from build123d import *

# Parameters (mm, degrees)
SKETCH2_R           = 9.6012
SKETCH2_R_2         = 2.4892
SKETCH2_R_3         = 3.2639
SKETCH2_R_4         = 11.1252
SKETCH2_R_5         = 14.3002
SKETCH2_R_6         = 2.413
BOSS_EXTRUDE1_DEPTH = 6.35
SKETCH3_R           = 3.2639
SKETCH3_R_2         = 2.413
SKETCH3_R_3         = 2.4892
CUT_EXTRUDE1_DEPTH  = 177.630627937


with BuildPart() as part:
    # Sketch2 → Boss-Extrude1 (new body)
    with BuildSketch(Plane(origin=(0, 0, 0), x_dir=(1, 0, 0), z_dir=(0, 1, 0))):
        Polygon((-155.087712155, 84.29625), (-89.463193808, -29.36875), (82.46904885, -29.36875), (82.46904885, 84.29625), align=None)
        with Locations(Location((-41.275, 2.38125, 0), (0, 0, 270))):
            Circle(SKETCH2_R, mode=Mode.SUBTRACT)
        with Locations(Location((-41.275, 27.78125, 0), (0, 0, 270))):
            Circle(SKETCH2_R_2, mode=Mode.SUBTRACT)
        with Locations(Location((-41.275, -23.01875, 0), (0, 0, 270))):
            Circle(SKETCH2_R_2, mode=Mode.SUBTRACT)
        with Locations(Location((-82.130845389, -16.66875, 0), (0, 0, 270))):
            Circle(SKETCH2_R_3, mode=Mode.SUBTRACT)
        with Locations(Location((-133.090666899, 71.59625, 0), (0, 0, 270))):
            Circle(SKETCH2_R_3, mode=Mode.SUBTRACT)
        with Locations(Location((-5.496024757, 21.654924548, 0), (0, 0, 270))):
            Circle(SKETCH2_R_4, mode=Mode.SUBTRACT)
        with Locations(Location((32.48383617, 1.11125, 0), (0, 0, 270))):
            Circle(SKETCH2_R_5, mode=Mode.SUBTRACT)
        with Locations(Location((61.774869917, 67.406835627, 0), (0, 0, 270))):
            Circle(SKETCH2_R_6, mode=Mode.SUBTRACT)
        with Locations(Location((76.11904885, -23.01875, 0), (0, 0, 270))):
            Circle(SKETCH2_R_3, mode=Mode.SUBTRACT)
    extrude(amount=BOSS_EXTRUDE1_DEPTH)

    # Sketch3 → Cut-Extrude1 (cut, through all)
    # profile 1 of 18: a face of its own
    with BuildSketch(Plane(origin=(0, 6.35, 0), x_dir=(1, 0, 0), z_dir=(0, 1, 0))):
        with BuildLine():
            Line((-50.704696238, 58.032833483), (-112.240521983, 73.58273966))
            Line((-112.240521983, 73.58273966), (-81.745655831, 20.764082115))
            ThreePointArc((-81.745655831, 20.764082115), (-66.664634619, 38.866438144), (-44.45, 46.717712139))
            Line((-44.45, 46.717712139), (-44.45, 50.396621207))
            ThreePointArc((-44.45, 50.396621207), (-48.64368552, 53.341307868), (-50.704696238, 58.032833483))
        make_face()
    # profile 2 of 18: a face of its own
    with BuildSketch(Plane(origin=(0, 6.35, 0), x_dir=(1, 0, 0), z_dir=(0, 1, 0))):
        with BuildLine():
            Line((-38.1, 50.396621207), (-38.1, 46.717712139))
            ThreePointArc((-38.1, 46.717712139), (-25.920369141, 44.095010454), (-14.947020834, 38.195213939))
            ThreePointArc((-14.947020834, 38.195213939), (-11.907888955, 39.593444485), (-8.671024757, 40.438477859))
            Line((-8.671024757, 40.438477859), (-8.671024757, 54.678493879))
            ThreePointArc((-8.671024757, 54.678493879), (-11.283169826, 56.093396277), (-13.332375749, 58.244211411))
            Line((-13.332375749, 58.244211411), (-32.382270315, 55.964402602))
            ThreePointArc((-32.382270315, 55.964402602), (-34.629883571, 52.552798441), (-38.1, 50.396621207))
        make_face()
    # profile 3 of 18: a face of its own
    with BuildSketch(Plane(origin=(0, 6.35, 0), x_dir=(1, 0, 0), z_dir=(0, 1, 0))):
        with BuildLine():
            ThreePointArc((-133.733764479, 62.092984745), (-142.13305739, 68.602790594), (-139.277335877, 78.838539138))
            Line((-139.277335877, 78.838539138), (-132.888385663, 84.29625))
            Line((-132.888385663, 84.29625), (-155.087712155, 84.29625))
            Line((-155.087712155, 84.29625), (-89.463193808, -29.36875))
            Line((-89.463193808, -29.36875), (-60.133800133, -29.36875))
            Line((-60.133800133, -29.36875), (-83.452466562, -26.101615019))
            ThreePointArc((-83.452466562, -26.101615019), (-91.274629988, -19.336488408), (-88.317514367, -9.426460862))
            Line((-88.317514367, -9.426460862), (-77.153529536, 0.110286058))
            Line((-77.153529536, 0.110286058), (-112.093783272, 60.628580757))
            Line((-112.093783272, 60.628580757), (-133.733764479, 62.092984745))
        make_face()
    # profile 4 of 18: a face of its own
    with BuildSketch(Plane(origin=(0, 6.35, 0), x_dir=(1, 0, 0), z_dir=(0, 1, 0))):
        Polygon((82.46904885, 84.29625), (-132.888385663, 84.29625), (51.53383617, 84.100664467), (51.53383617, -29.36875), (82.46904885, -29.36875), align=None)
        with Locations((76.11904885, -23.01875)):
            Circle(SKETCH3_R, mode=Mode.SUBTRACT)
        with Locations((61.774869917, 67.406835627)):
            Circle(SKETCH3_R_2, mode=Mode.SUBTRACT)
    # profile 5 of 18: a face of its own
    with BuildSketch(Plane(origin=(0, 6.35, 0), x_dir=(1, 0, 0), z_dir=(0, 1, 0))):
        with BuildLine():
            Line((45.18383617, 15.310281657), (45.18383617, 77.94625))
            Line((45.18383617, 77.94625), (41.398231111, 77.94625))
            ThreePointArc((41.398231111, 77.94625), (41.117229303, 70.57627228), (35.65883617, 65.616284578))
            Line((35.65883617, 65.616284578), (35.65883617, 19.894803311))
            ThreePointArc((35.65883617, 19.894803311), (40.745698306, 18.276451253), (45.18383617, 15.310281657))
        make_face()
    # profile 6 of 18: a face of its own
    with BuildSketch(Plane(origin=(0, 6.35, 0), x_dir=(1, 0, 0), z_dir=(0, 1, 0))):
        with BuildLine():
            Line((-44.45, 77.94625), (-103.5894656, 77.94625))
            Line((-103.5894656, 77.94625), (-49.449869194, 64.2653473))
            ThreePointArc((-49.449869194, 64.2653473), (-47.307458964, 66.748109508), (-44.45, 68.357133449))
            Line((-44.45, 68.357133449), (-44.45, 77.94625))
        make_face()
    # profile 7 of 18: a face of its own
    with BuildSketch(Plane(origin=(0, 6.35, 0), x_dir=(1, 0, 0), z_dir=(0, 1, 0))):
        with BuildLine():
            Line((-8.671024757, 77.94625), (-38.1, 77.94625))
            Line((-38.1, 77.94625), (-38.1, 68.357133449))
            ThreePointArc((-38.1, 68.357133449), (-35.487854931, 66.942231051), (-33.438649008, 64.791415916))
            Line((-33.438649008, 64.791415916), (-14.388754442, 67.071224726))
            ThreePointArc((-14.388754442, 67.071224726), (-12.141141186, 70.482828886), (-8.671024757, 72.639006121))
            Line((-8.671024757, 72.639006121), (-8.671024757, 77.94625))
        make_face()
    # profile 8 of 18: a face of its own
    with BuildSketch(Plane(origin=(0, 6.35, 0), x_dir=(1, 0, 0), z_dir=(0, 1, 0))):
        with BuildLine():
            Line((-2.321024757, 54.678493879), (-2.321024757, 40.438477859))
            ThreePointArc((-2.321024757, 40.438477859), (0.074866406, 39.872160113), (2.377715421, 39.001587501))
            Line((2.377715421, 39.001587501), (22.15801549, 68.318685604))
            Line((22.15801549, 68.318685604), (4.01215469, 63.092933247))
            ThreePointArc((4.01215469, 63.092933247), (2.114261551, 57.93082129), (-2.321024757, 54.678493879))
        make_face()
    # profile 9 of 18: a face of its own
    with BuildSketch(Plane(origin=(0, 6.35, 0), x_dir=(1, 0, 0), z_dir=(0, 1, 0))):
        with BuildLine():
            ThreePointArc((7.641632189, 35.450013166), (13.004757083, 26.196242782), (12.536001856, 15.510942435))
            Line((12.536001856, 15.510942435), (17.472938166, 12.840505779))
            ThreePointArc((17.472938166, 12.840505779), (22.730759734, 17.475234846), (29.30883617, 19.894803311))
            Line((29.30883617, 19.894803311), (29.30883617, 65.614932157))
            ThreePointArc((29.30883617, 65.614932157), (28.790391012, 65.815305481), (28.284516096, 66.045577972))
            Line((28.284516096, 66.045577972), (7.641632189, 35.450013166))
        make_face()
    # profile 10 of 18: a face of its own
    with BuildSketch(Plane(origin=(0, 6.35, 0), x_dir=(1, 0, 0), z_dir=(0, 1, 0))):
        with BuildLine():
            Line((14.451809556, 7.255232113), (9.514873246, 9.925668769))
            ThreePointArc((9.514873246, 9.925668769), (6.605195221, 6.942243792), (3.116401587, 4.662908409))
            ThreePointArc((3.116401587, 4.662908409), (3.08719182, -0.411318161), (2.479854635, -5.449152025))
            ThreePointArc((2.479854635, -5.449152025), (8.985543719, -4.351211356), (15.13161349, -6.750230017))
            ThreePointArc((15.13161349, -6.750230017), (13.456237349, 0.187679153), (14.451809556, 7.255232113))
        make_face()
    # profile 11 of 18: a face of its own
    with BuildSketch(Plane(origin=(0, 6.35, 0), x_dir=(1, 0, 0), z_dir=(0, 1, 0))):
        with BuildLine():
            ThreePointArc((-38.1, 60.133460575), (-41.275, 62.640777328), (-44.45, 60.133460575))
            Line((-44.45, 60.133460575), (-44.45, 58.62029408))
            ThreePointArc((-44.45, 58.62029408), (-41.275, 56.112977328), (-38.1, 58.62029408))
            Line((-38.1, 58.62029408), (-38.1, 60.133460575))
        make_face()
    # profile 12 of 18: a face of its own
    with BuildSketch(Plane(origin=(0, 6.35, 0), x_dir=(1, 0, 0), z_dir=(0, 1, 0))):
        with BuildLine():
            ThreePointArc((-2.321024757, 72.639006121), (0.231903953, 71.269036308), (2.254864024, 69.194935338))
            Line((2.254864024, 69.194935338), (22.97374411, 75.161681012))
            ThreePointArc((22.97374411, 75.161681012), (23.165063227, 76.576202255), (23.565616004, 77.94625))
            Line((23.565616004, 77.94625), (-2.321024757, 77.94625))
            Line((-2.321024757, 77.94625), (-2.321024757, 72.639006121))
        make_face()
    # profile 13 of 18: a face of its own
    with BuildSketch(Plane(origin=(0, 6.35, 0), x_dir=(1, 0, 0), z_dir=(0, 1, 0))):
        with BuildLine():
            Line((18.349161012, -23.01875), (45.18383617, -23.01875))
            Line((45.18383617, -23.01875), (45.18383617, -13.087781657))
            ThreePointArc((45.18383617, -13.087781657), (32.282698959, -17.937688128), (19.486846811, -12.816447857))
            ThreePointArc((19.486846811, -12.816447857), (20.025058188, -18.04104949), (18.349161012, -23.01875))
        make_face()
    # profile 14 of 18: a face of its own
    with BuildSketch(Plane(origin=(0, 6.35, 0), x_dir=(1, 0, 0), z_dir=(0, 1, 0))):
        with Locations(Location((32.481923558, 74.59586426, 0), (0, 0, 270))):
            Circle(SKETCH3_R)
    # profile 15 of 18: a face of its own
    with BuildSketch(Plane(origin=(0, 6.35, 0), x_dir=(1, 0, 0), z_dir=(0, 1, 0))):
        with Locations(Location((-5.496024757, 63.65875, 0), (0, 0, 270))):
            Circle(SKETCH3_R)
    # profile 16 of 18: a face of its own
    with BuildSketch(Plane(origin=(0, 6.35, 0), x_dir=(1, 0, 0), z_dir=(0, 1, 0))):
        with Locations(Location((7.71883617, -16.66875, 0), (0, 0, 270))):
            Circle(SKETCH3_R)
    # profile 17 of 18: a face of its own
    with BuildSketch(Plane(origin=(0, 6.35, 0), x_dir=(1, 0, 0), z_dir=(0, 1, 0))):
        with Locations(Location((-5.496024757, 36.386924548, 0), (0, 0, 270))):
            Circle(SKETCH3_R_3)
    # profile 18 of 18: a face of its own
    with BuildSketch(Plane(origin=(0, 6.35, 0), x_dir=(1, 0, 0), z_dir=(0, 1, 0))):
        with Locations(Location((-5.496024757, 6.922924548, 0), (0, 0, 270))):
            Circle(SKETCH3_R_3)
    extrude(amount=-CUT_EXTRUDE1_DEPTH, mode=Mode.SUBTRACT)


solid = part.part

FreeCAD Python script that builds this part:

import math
import FreeCAD as App
import Part
import Sketcher
from FreeCAD import Vector
Q = App.Units.Quantity


def add_polygon(sketch, points):
    """Adds a closed chain of lines whose ends are joined by coincident constraints."""
    first, n = sketch.GeometryCount, len(points)
    for a, b in zip(points, points[1:] + points[:1]):
        sketch.addGeometry(Part.LineSegment(App.Vector(*a, 0), App.Vector(*b, 0)), False)
    for i in range(n):
        sketch.addConstraint(Sketcher.Constraint("Coincident", first + i, 2, first + (i + 1) % n, 1))

doc = App.newDocument("Part")
params = doc.addObject("Spreadsheet::Sheet", "Params")
for row, (alias, value) in enumerate([
    ("sketch1_diameter", "0.19 in"),
    ("sketch1_diameter2", "0.257 in"),
    ("sketch1_diameter3", "0.196 in"),
    ("sketch1_diameter4", "0.756 in"),
    ("sketch1_diameter5", "0.876 in"),
    ("pad1_length", "0.25 in"),
    ("sketch2_diameter", "0.19 in"),
    ("sketch2_radius", "1.75 in"),
    ("sketch2_radius2", "0.75 in"),
    ("sketch2_diameter2", "0.257 in"),
    ("sketch2_diameter3", "0.196 in"),
    ("pocket1_length", "177.630628 mm"),
], start=1):
    params.set(f"A{row}", alias)
    params.set(f"B{row}", "=" + value)
    params.setAlias(f"B{row}", alias)

body = doc.addObject("PartDesign::Body", "Body")

# Sketch on XZ plane
sketch1 = body.newObject("Sketcher::SketchObject", "Sketch")
sketch1.AttachmentSupport = (doc.getObject("XZ_Plane"), [""])
sketch1.MapMode = "FlatFace"
add_polygon(sketch1, [(-155.1, -84.3), (-89.5, 29.4), (82.5, 29.4), (82.5, -84.3)])  # lines 0-3
sketch1.addGeometry(Part.Circle(Vector(-82.1, 16.7, 0), Vector(0, 0, 1), 3.3), False)  # 4
sketch1.addGeometry(Part.Circle(Vector(-41.3, 23, 0), Vector(0, 0, 1), 2.5), False)  # 5
sketch1.addGeometry(Part.Circle(Vector(-41.3, -2.4, 0), Vector(0, 0, 1), 9.6), False)  # 6
sketch1.addGeometry(Part.Circle(Vector(76.1, 23, 0), Vector(0, 0, 1), 3.3), False)  # 7
sketch1.addGeometry(Part.Circle(Vector(-5.5, -21.7, 0), Vector(0, 0, 1), 11.1), False)  # 8
sketch1.addGeometry(Part.Circle(Vector(32.5, -1.1, 0), Vector(0, 0, 1), 14.3), False)  # 9
sketch1.addGeometry(Part.Circle(Vector(-41.3, -27.8, 0), Vector(0, 0, 1), 2.5), False)  # 10
sketch1.addGeometry(Part.Circle(Vector(-133.1, -71.6, 0), Vector(0, 0, 1), 3.3), False)  # 11
sketch1.addGeometry(Part.Circle(Vector(61.8, -67.4, 0), Vector(0, 0, 1), 2.4), False)  # 12
sketch1.addConstraint(Sketcher.Constraint("Horizontal", 1))
sketch1.addConstraint(Sketcher.Constraint("Vertical", 2))
sketch1.addConstraint(Sketcher.Constraint("Horizontal", 3))
sketch1.addConstraint(Sketcher.Constraint("Equal", 4, 7))
sketch1.addConstraint(Sketcher.Constraint("Equal", 5, 10))
sketch1.addConstraint(Sketcher.Constraint("Equal", 7, 11))
sketch1.addConstraint(Sketcher.Constraint("Horizontal", 5, 3, 7, 3))
sketch1.addConstraint(Sketcher.Constraint("Vertical", 5, 3, 6, 3))
sketch1.addConstraint(Sketcher.Constraint("Vertical", 6, 3, 10, 3))
sketch1.addConstraint(Sketcher.Constraint("Diameter", 12, Q("0.19 in")))
sketch1.addConstraint(Sketcher.Constraint("Diameter", 4, Q("0.257 in")))
sketch1.addConstraint(Sketcher.Constraint("Diameter", 5, Q("0.196 in")))
sketch1.addConstraint(Sketcher.Constraint("Diameter", 6, Q("0.756 in")))
sketch1.addConstraint(Sketcher.Constraint("Diameter", 8, Q("0.876 in")))
sketch1.addConstraint(Sketcher.Constraint("Diameter", 9, Q("1.126 in")))
sketch1.addConstraint(Sketcher.Constraint("Angle", 0, Q("60 deg")))
sketch1.addConstraint(Sketcher.Constraint("DistanceY", 6, 3, 5, 3, Q("1 in")))
sketch1.addConstraint(Sketcher.Constraint("DistanceY", 10, 3, 6, 3, Q("1 in")))
sketch1.addConstraint(Sketcher.Constraint("DistanceY", 9, 3, 4, 3, Q("0.7 in")))
sketch1.addConstraint(Sketcher.Constraint("DistanceY", 4, 3, 0, 2, Q("0.5 in")))
sketch1.addConstraint(Sketcher.Constraint("DistanceY", 3, 2, 11, 3, Q("0.5 in")))
sketch1.addConstraint(Sketcher.Constraint("DistanceY", 2, 2, 2, 1, Q("4.475 in")))
sketch1.addConstraint(Sketcher.Constraint("DistanceY", 4, 3, 5, 3, Q("0.25 in")))
sketch1.addConstraint(Sketcher.Constraint("DistanceX", 7, 3, 1, 2, Q("0.25 in")))
sketch1.addConstraint(Sketcher.Constraint("DistanceY", -1, 1, 4, 3, Q("0.65625 in")))
sketch1.addConstraint(Sketcher.Constraint("DistanceX", 5, 3, -1, 1, Q("1.625 in")))
sketch1.addConstraint(Sketcher.Constraint("DistanceX", 3, 2, 3, 1, Q("237.556761 mm")))
sketch1.addConstraint(Sketcher.Constraint("DistanceX", -1, 1, 7, 3, Q("76.119049 mm")))
sketch1.addConstraint(Sketcher.Constraint("DistanceX", -1, 1, 12, 3, Q("61.77487 mm")))
sketch1.addConstraint(Sketcher.Constraint("DistanceX", 4, 3, 8, 3, Q("76.634821 mm")))
sketch1.addConstraint(Sketcher.Constraint("DistanceX", 8, 3, 9, 3, Q("37.979861 mm")))
sketch1.addConstraint(Sketcher.Constraint("DistanceX", 11, 3, 4, 3, Q("50.959822 mm")))
sketch1.addConstraint(Sketcher.Constraint("DistanceY", 12, 3, 8, 3, Q("45.751911 mm")))
sketch1.addConstraint(Sketcher.Constraint("DistanceX", 0, 2, 4, 3, Q("7.332348 mm")))
sketch1.addConstraint(Sketcher.Constraint("DistanceY", 8, 3, -1, 1, Q("21.654925 mm")))
sketch1.setExpression("Constraints[13]", "Params.sketch1_diameter")
sketch1.setExpression("Constraints[14]", "Params.sketch1_diameter2")
sketch1.setExpression("Constraints[15]", "Params.sketch1_diameter3")
sketch1.setExpression("Constraints[16]", "Params.sketch1_diameter4")
sketch1.setExpression("Constraints[17]", "Params.sketch1_diameter5")
pad1 = body.newObject("PartDesign::Pad", "Pad")
pad1.Profile = sketch1
pad1.setExpression("Length", "Params.pad1_length")
pad1.Reversed = True

# Sketch on XZ plane
sketch2 = body.newObject("Sketcher::SketchObject", "Sketch001")
sketch2.AttachmentSupport = (doc.getObject("XZ_Plane"), [""])
sketch2.MapMode = "FlatFace"
sketch2.AttachmentOffset = App.Placement(Vector(0, 0, -0.25 * 25.4), App.Rotation())
sketch2.addGeometry(Part.LineSegment(Vector(-50.7, -58, 0), Vector(-112.2, -73.6, 0)), False)  # 0
sketch2.addGeometry(Part.LineSegment(Vector(-112.2, -73.6, 0), Vector(-81.7, -20.8, 0)), False)  # 1
sketch2.addGeometry(Part.ArcOfCircle(Part.Circle(Vector(-41.3, -2.4, 0), Vector(0, 0, 1), 44.4), math.radians(-156), math.radians(-94)), False)  # 2
sketch2.addGeometry(Part.LineSegment(Vector(-44.5, -46.7, 0), Vector(-44.5, -50.4, 0)), False)  # 3
sketch2.addGeometry(Part.ArcOfCircle(Part.Circle(Vector(-41.3, -59.4, 0), Vector(0, 0, 1), 9.5), math.radians(109), math.radians(172)), False)  # 4
sketch2.addGeometry(Part.LineSegment(Vector(-38.1, -50.4, 0), Vector(-38.1, -46.7, 0)), False)  # 5
sketch2.addGeometry(Part.ArcOfCircle(Part.Circle(Vector(-41.3, -2.4, 0), Vector(0, 0, 1), 44.4), math.radians(-86), math.radians(-54)), False)  # 6
sketch2.addGeometry(Part.ArcOfCircle(Part.Circle(Vector(-5.5, -21.7, 0), Vector(0, 0, 1), 19), math.radians(-120), math.radians(-100)), False)  # 7
sketch2.addGeometry(Part.LineSegment(Vector(-8.7, -40.4, 0), Vector(-8.7, -54.7, 0)), False)  # 8
sketch2.addGeometry(Part.ArcOfCircle(Part.Circle(Vector(-5.5, -63.7, 0), Vector(0, 0, 1), 9.5), math.radians(109), math.radians(145)), False)  # 9
sketch2.addGeometry(Part.LineSegment(Vector(-13.3, -58.2, 0), Vector(-32.4, -56, 0)), False)  # 10
sketch2.addGeometry(Part.ArcOfCircle(Part.Circle(Vector(-41.3, -59.4, 0), Vector(0, 0, 1), 9.5), math.radians(21), math.radians(71)), False)  # 11
sketch2.addGeometry(Part.ArcOfCircle(Part.Circle(Vector(-133.1, -71.6, 0), Vector(0, 0, 1), 9.5), math.radians(94), math.radians(229)), False)  # 12
sketch2.addGeometry(Part.LineSegment(Vector(-139.3, -78.8, 0), Vector(-132.9, -84.3, 0)), False)  # 13
sketch2.addGeometry(Part.LineSegment(Vector(-132.9, -84.3, 0), Vector(-155.1, -84.3, 0)), False)  # 14
sketch2.addGeometry(Part.LineSegment(Vector(-155.1, -84.3, 0), Vector(-89.5, 29.4, 0)), False)  # 15
sketch2.addGeometry(Part.LineSegment(Vector(-89.5, 29.4, 0), Vector(-60.1, 29.4, 0)), False)  # 16
sketch2.addGeometry(Part.LineSegment(Vector(-60.1, 29.4, 0), Vector(-83.5, 26.1, 0)), False)  # 17
sketch2.addGeometry(Part.ArcOfCircle(Part.Circle(Vector(-82.1, 16.7, 0), Vector(0, 0, 1), 9.5), math.radians(98), math.radians(229)), False)  # 18
sketch2.addGeometry(Part.LineSegment(Vector(-88.3, 9.4, 0), Vector(-77.2, -0.1, 0)), False)  # 19
sketch2.addGeometry(Part.LineSegment(Vector(-77.2, -0.1, 0), Vector(-112.1, -60.6, 0)), False)  # 20
sketch2.addGeometry(Part.LineSegment(Vector(-112.1, -60.6, 0), Vector(-133.7, -62.1, 0)), False)  # 21
add_polygon(sketch2, [(82.5, -84.3), (-132.9, -84.3), (51.5, -84.1), (51.5, 29.4), (82.5, 29.4)])  # lines 22-26
sketch2.addGeometry(Part.Circle(Vector(76.1, 23, 0), Vector(0, 0, 1), 3.3), False)  # 27
sketch2.addGeometry(Part.Circle(Vector(61.8, -67.4, 0), Vector(0, 0, 1), 2.4), False)  # 28
sketch2.addGeometry(Part.LineSegment(Vector(45.2, -15.3, 0), Vector(45.2, -77.9, 0)), False)  # 29
sketch2.addGeometry(Part.LineSegment(Vector(45.2, -77.9, 0), Vector(41.4, -77.9, 0)), False)  # 30
sketch2.addGeometry(Part.ArcOfCircle(Part.Circle(Vector(32.5, -74.6, 0), Vector(0, 0, 1), 9.5), math.radians(-21), math.radians(71)), False)  # 31
sketch2.addGeometry(Part.LineSegment(Vector(35.7, -65.6, 0), Vector(35.7, -19.9, 0)), False)  # 32
sketch2.addGeometry(Part.ArcOfCircle(Part.Circle(Vector(32.5, -1.1, 0), Vector(0, 0, 1), 19), math.radians(-80), math.radians(-48)), False)  # 33
sketch2.addGeometry(Part.LineSegment(Vector(-44.5, -77.9, 0), Vector(-103.6, -77.9, 0)), False)  # 34
sketch2.addGeometry(Part.LineSegment(Vector(-103.6, -77.9, 0), Vector(-49.4, -64.3, 0)), False)  # 35
sketch2.addGeometry(Part.ArcOfCircle(Part.Circle(Vector(-41.3, -59.4, 0), Vector(0, 0, 1), 9.5), math.radians(-149), math.radians(-109)), False)  # 36
sketch2.addGeometry(Part.LineSegment(Vector(-44.5, -68.4, 0), Vector(-44.5, -77.9, 0)), False)  # 37
sketch2.addGeometry(Part.LineSegment(Vector(-8.7, -77.9, 0), Vector(-38.1, -77.9, 0)), False)  # 38
sketch2.addGeometry(Part.LineSegment(Vector(-38.1, -77.9, 0), Vector(-38.1, -68.4, 0)), False)  # 39
sketch2.addGeometry(Part.ArcOfCircle(Part.Circle(Vector(-41.3, -59.4, 0), Vector(0, 0, 1), 9.5), math.radians(-71), math.radians(-35)), False)  # 40
sketch2.addGeometry(Part.LineSegment(Vector(-33.4, -64.8, 0), Vector(-14.4, -67.1, 0)), False)  # 41
sketch2.addGeometry(Part.ArcOfCircle(Part.Circle(Vector(-5.5, -63.7, 0), Vector(0, 0, 1), 9.5), math.radians(-159), math.radians(-109)), False)  # 42
sketch2.addGeometry(Part.LineSegment(Vector(-8.7, -72.6, 0), Vector(-8.7, -77.9, 0)), False)  # 43
sketch2.addGeometry(Part.LineSegment(Vector(-2.3, -54.7, 0), Vector(-2.3, -40.4, 0)), False)  # 44
sketch2.addGeometry(Part.ArcOfCircle(Part.Circle(Vector(-5.5, -21.7, 0), Vector(0, 0, 1), 19.1), math.radians(-80.41), math.radians(-65.59)), False)  # 45
sketch2.addGeometry(Part.LineSegment(Vector(2.4, -39, 0), Vector(22.2, -68.3, 0)), False)  # 46
sketch2.addGeometry(Part.LineSegment(Vector(22.2, -68.3, 0), Vector(4, -63.1, 0)), False)  # 47
sketch2.addGeometry(Part.ArcOfCircle(Part.Circle(Vector(-5.5, -63.7, 0), Vector(0, 0, 1), 9.5), math.radians(3), math.radians(71)), False)  # 48
sketch2.addGeometry(Part.ArcOfCircle(Part.Circle(Vector(-5.5, -21.7, 0), Vector(0, 0, 1), 19.1), math.radians(-46), math.radians(19)), False)  # 49
sketch2.addGeometry(Part.LineSegment(Vector(12.5, -15.5, 0), Vector(17.5, -12.8, 0)), False)  # 50
sketch2.addGeometry(Part.ArcOfCircle(Part.Circle(Vector(32.5, -1.1, 0), Vector(0, 0, 1), 19), math.radians(-142), math.radians(-100)), False)  # 51
sketch2.addGeometry(Part.LineSegment(Vector(29.3, -19.9, 0), Vector(29.3, -65.6, 0)), False)  # 52
sketch2.addGeometry(Part.ArcOfCircle(Part.Circle(Vector(32.5, -74.6, 0), Vector(0, 0, 1), 9.5), math.radians(109.46), math.radians(116.15)), False)  # 53
sketch2.addGeometry(Part.LineSegment(Vector(28.3, -66, 0), Vector(7.6, -35.5, 0)), False)  # 54
sketch2.addGeometry(Part.LineSegment(Vector(14.5, -7.3, 0), Vector(9.5, -9.9, 0)), False)  # 55
sketch2.addGeometry(Part.ArcOfCircle(Part.Circle(Vector(-5.5, -21.7, 0), Vector(0, 0, 1), 19.1), math.radians(38), math.radians(63)), False)  # 56
sketch2.addGeometry(Part.ArcOfCircle(Part.Circle(Vector(-41.3, -2.4, 0), Vector(0, 0, 1), 44.4), math.radians(-2.94), math.radians(10.15)), False)  # 57
sketch2.addGeometry(Part.ArcOfCircle(Part.Circle(Vector(7.7, 16.7, 0), Vector(0, 0, 1), 12.4), math.radians(-115), math.radians(-53)), False)  # 58
sketch2.addGeometry(Part.ArcOfCircle(Part.Circle(Vector(32.5, -1.1, 0), Vector(0, 0, 1), 19.1), math.radians(156), math.radians(199)), False)  # 59
sketch2.addGeometry(Part.ArcOfCircle(Part.Circle(Vector(-41.3, -59.4, 0), Vector(0, 0, 1), 3.3), math.radians(-167), math.radians(-13)), False)  # 60
sketch2.addGeometry(Part.LineSegment(Vector(-44.5, -60.1, 0), Vector(-44.5, -58.6, 0)), False)  # 61
sketch2.addGeometry(Part.ArcOfCircle(Part.Circle(Vector(-41.3, -59.4, 0), Vector(0, 0, 1), 3.3), math.radians(13), math.radians(167)), False)  # 62
sketch2.addGeometry(Part.LineSegment(Vector(-38.1, -58.6, 0), Vector(-38.1, -60.1, 0)), False)  # 63
sketch2.addGeometry(Part.ArcOfCircle(Part.Circle(Vector(-5.5, -63.7, 0), Vector(0, 0, 1), 9.5), math.radians(-71), math.radians(-36)), False)  # 64
sketch2.addGeometry(Part.LineSegment(Vector(2.3, -69.2, 0), Vector(23, -75.2, 0)), False)  # 65
sketch2.addGeometry(Part.ArcOfCircle(Part.Circle(Vector(32.5, -74.6, 0), Vector(0, 0, 1), 9.5), math.radians(-176.59), math.radians(-159.41)), False)  # 66
sketch2.addGeometry(Part.LineSegment(Vector(23.6, -77.9, 0), Vector(-2.3, -77.9, 0)), False)  # 67
sketch2.addGeometry(Part.LineSegment(Vector(-2.3, -77.9, 0), Vector(-2.3, -72.6, 0)), False)  # 68
sketch2.addGeometry(Part.LineSegment(Vector(18.3, 23, 0), Vector(45.2, 23, 0)), False)  # 69
sketch2.addGeometry(Part.LineSegment(Vector(45.2, 23, 0), Vector(45.2, 13.1, 0)), False)  # 70
sketch2.addGeometry(Part.ArcOfCircle(Part.Circle(Vector(32.5, -1.1, 0), Vector(0, 0, 1), 19.1), math.radians(48), math.radians(133)), False)  # 71
sketch2.addGeometry(Part.ArcOfCircle(Part.Circle(Vector(7.7, 16.7, 0), Vector(0, 0, 1), 12.4), math.radians(-18), math.radians(31)), False)  # 72
sketch2.addGeometry(Part.Circle(Vector(32.5, -74.6, 0), Vector(0, 0, 1), 3.3), False)  # 73
sketch2.addGeometry(Part.Circle(Vector(-5.5, -63.7, 0), Vector(0, 0, 1), 3.3), False)  # 74
sketch2.addGeometry(Part.Circle(Vector(7.7, 16.7, 0), Vector(0, 0, 1), 3.3), False)  # 75
sketch2.addGeometry(Part.Circle(Vector(-5.5, -36.4, 0), Vector(0, 0, 1), 2.5), False)  # 76
sketch2.addGeometry(Part.Circle(Vector(-5.5, -6.9, 0), Vector(0, 0, 1), 2.5), False)  # 77
sketch2.addConstraint(Sketcher.Constraint("Coincident", 0, 2, 1, 1))
sketch2.addConstraint(Sketcher.Constraint("Coincident", 1, 2, 2, 1))
sketch2.addConstraint(Sketcher.Constraint("Coincident", 2, 2, 3, 1))
sketch2.addConstraint(Sketcher.Constraint("Coincident", 3, 2, 4, 1))
sketch2.addConstraint(Sketcher.Constraint("Coincident", 4, 2, 0, 1))
sketch2.addConstraint(Sketcher.Constraint("Coincident", 5, 2, 6, 1))
sketch2.addConstraint(Sketcher.Constraint("Coincident", 6, 2, 7, 1))
sketch2.addConstraint(Sketcher.Constraint("Coincident", 7, 2, 8, 1))
sketch2.addConstraint(Sketcher.Constraint("Coincident", 8, 2, 9, 1))
sketch2.addConstraint(Sketcher.Constraint("Coincident", 9, 2, 10, 1))
sketch2.addConstraint(Sketcher.Constraint("Coincident", 10, 2, 11, 1))
sketch2.addConstraint(Sketcher.Constraint("Coincident", 11, 2, 5, 1))
sketch2.addConstraint(Sketcher.Constraint("Tangent", 12, 2, 13, 1))
sketch2.addConstraint(Sketcher.Constraint("Coincident", 13, 2, 14, 1))
sketch2.addConstraint(Sketcher.Constraint("Coincident", 14, 2, 15, 1))
sketch2.addConstraint(Sketcher.Constraint("Coincident", 15, 2, 16, 1))
sketch2.addConstraint(Sketcher.Constraint("Coincident", 16, 2, 17, 1))
sketch2.addConstraint(Sketcher.Constraint("Tangent", 17, 2, 18, 1))
sketch2.addConstraint(Sketcher.Constraint("Tangent", 18, 2, 19, 1))
sketch2.addConstraint(Sketcher.Constraint("Coincident", 19, 2, 20, 1))
sketch2.addConstraint(Sketcher.Constraint("Coincident", 20, 2, 21, 1))
sketch2.addConstraint(Sketcher.Constraint("Tangent", 21, 2, 12, 1))
sketch2.addConstraint(Sketcher.Constraint("Coincident", 29, 2, 30, 1))
sketch2.addConstraint(Sketcher.Constraint("Coincident", 30, 2, 31, 1))
sketch2.addConstraint(Sketcher.Constraint("Coincident", 31, 2, 32, 1))
sketch2.addConstraint(Sketcher.Constraint("Coincident", 32, 2, 33, 1))
sketch2.addConstraint(Sketcher.Constraint("Coincident", 33, 2, 29, 1))
sketch2.addConstraint(Sketcher.Constraint("Coincident", 34, 2, 35, 1))
sketch2.addConstraint(Sketcher.Constraint("Coincident", 35, 2, 36, 1))
sketch2.addConstraint(Sketcher.Constraint("Coincident", 36, 2, 37, 1))
sketch2.addConstraint(Sketcher.Constraint("Coincident", 37, 2, 34, 1))
sketch2.addConstraint(Sketcher.Constraint("Coincident", 38, 2, 39, 1))
sketch2.addConstraint(Sketcher.Constraint("Coincident", 39, 2, 40, 1))
sketch2.addConstraint(Sketcher.Constraint("Coincident", 40, 2, 41, 1))
sketch2.addConstraint(Sketcher.Constraint("Coincident", 41, 2, 42, 1))
sketch2.addConstraint(Sketcher.Constraint("Coincident", 42, 2, 43, 1))
sketch2.addConstraint(Sketcher.Constraint("Coincident", 43, 2, 38, 1))
sketch2.addConstraint(Sketcher.Constraint("Coincident", 44, 2, 45, 1))
sketch2.addConstraint(Sketcher.Constraint("Coincident", 45, 2, 46, 1))
sketch2.addConstraint(Sketcher.Constraint("Coincident", 46, 2, 47, 1))
sketch2.addConstraint(Sketcher.Constraint("Coincident", 47, 2, 48, 1))
sketch2.addConstraint(Sketcher.Constraint("Coincident", 48, 2, 44, 1))
sketch2.addConstraint(Sketcher.Constraint("Coincident", 49, 2, 50, 1))
sketch2.addConstraint(Sketcher.Constraint("Coincident", 50, 2, 51, 1))
sketch2.addConstraint(Sketcher.Constraint("Coincident", 51, 2, 52, 1))
sketch2.addConstraint(Sketcher.Constraint("Coincident", 52, 2, 53, 1))
sketch2.addConstraint(Sketcher.Constraint("Coincident", 53, 2, 54, 1))
sketch2.addConstraint(Sketcher.Constraint("Coincident", 54, 2, 49, 1))
sketch2.addConstraint(Sketcher.Constraint("Coincident", 55, 2, 56, 1))
sketch2.addConstraint(Sketcher.Constraint("Coincident", 56, 2, 57, 1))
sketch2.addConstraint(Sketcher.Constraint("Coincident", 57, 2, 58, 1))
sketch2.addConstraint(Sketcher.Constraint("Coincident", 58, 2, 59, 1))
sketch2.addConstraint(Sketcher.Constraint("Coincident", 59, 2, 55, 1))
sketch2.addConstraint(Sketcher.Constraint("Coincident", 60, 1, 61, 1))
sketch2.addConstraint(Sketcher.Constraint("Coincident", 61, 2, 62, 2))
sketch2.addConstraint(Sketcher.Constraint("Coincident", 62, 1, 63, 1))
sketch2.addConstraint(Sketcher.Constraint("Coincident", 63, 2, 60, 2))
sketch2.addConstraint(Sketcher.Constraint("Coincident", 64, 2, 65, 1))
sketch2.addConstraint(Sketcher.Constraint("Coincident", 65, 2, 66, 1))
sketch2.addConstraint(Sketcher.Constraint("Coincident", 66, 2, 67, 1))
sketch2.addConstraint(Sketcher.Constraint("Coincident", 67, 2, 68, 1))
sketch2.addConstraint(Sketcher.Constraint("Coincident", 68, 2, 64, 1))
sketch2.addConstraint(Sketcher.Constraint("Coincident", 69, 2, 70, 1))
sketch2.addConstraint(Sketcher.Constraint("Coincident", 70, 2, 71, 1))
sketch2.addConstraint(Sketcher.Constraint("Coincident", 71, 2, 72, 1))
sketch2.addConstraint(Sketcher.Constraint("Coincident", 72, 2, 69, 1))
sketch2.addConstraint(Sketcher.Constraint("Vertical", 3))
sketch2.addConstraint(Sketcher.Constraint("Vertical", 5))
sketch2.addConstraint(Sketcher.Constraint("Vertical", 8))
sketch2.addConstraint(Sketcher.Constraint("Horizontal", 14))
sketch2.addConstraint(Sketcher.Constraint("Horizontal", 16))
sketch2.addConstraint(Sketcher.Constraint("Horizontal", 22))
sketch2.addConstraint(Sketcher.Constraint("Vertical", 24))
sketch2.addConstraint(Sketcher.Constraint("Horizontal", 25))
sketch2.addConstraint(Sketcher.Constraint("Vertical", 26))
sketch2.addConstraint(Sketcher.Constraint("Vertical", 29))
sketch2.addConstraint(Sketcher.Constraint("Horizontal", 30))
sketch2.addConstraint(Sketcher.Constraint("Vertical", 32))
sketch2.addConstraint(Sketcher.Constraint("Horizontal", 34))
sketch2.addConstraint(Sketcher.Constraint("Vertical", 37))
sketch2.addConstraint(Sketcher.Constraint("Horizontal", 38))
sketch2.addConstraint(Sketcher.Constraint("Vertical", 39))
sketch2.addConstraint(Sketcher.Constraint("Vertical", 43))
sketch2.addConstraint(Sketcher.Constraint("Vertical", 44))
sketch2.addConstraint(Sketcher.Constraint("Vertical", 52))
sketch2.addConstraint(Sketcher.Constraint("Vertical", 61))
sketch2.addConstraint(Sketcher.Constraint("Vertical", 63))
sketch2.addConstraint(Sketcher.Constraint("Horizontal", 67))
sketch2.addConstraint(Sketcher.Constraint("Vertical", 68))
sketch2.addConstraint(Sketcher.Constraint("Horizontal", 69))
sketch2.addConstraint(Sketcher.Constraint("Vertical", 70))
sketch2.addConstraint(Sketcher.Constraint("Coincident", 6, 3, 2, 3))
sketch2.addConstraint(Sketcher.Constraint("Coincident", 11, 3, 4, 3))
sketch2.addConstraint(Sketcher.Constraint("Coincident", 36, 3, 4, 3))
sketch2.addConstraint(Sketcher.Constraint("Coincident", 40, 3, 4, 3))
sketch2.addConstraint(Sketcher.Constraint("Coincident", 42, 3, 9, 3))
sketch2.addConstraint(Sketcher.Constraint("Coincident", 45, 3, 7, 3))
sketch2.addConstraint(Sketcher.Constraint("Coincident", 48, 3, 9, 3))
sketch2.addConstraint(Sketcher.Constraint("Coincident", 49, 3, 7, 3))
sketch2.addConstraint(Sketcher.Constraint("Coincident", 51, 3, 33, 3))
sketch2.addConstraint(Sketcher.Constraint("Coincident", 53, 3, 31, 3))
sketch2.addConstraint(Sketcher.Constraint("Coincident", 56, 3, 7, 3))
sketch2.addConstraint(Sketcher.Constraint("Coincident", 57, 3, 2, 3))
sketch2.addConstraint(Sketcher.Constraint("Coincident", 59, 3, 33, 3))
sketch2.addConstraint(Sketcher.Constraint("Coincident", 60, 3, 4, 3))
sketch2.addConstraint(Sketcher.Constraint("Coincident", 62, 3, 4, 3))
sketch2.addConstraint(Sketcher.Constraint("Coincident", 64, 3, 9, 3))
sketch2.addConstraint(Sketcher.Constraint("Coincident", 66, 3, 31, 3))
sketch2.addConstraint(Sketcher.Constraint("Coincident", 71, 3, 33, 3))
sketch2.addConstraint(Sketcher.Constraint("Coincident", 72, 3, 58, 3))
sketch2.addConstraint(Sketcher.Constraint("Coincident", 73, 3, 31, 3))
sketch2.addConstraint(Sketcher.Constraint("Coincident", 74, 3, 9, 3))
sketch2.addConstraint(Sketcher.Constraint("Coincident", 75, 3, 58, 3))
sketch2.addConstraint(Sketcher.Constraint("Coincident", 22, 2, 13, 2))
sketch2.addConstraint(Sketcher.Constraint("Equal", 2, 6))
sketch2.addConstraint(Sketcher.Constraint("Equal", 4, 9))
sketch2.addConstraint(Sketcher.Constraint("Equal", 9, 11))
sketch2.addConstraint(Sketcher.Constraint("Equal", 11, 12))
sketch2.addConstraint(Sketcher.Constraint("Equal", 12, 18))
sketch2.addConstraint(Sketcher.Constraint("Equal", 18, 31))
sketch2.addConstraint(Sketcher.Constraint("Equal", 7, 33))
sketch2.addConstraint(Sketcher.Constraint("Equal", 31, 36))
sketch2.addConstraint(Sketcher.Constraint("Equal", 36, 40))
sketch2.addConstraint(Sketcher.Constraint("Equal", 40, 42))
sketch2.addConstraint(Sketcher.Constraint("Equal", 33, 45))
sketch2.addConstraint(Sketcher.Constraint("Equal", 42, 48))
sketch2.addConstraint(Sketcher.Constraint("Equal", 45, 49))
sketch2.addConstraint(Sketcher.Constraint("Equal", 49, 51))
sketch2.addConstraint(Sketcher.Constraint("Equal", 48, 53))
sketch2.addConstraint(Sketcher.Constraint("Equal", 51, 56))
sketch2.addConstraint(Sketcher.Constraint("Equal", 6, 57))
sketch2.addConstraint(Sketcher.Constraint("Equal", 56, 59))
sketch2.addConstraint(Sketcher.Constraint("Equal", 27, 60))
sketch2.addConstraint(Sketcher.Constraint("Equal", 60, 62))
sketch2.addConstraint(Sketcher.Constraint("Equal", 53, 64))
sketch2.addConstraint(Sketcher.Constraint("Equal", 64, 66))
sketch2.addConstraint(Sketcher.Constraint("Equal", 59, 71))
sketch2.addConstraint(Sketcher.Constraint("Equal", 58, 72))
sketch2.addConstraint(Sketcher.Constraint("Equal", 62, 73))
sketch2.addConstraint(Sketcher.Constraint("Equal", 73, 74))
sketch2.addConstraint(Sketcher.Constraint("Equal", 74, 75))
sketch2.addConstraint(Sketcher.Constraint("Equal", 76, 77))
sketch2.addConstraint(Sketcher.Constraint("Parallel", 1, 15))
sketch2.addConstraint(Sketcher.Constraint("Parallel", 13, 19))
sketch2.addConstraint(Sketcher.Constraint("Parallel", 15, 20))
sketch2.addConstraint(Sketcher.Constraint("Parallel", 0, 35))
sketch2.addConstraint(Sketcher.Constraint("Parallel", 10, 41))
sketch2.addConstraint(Sketcher.Constraint("Parallel", 46, 54))
sketch2.addConstraint(Sketcher.Constraint("Parallel", 50, 55))
sketch2.addConstraint(Sketcher.Constraint("Parallel", 47, 65))
sketch2.addConstraint(Sketcher.Constraint("Horizontal", 18, 3, 58, 3))
sketch2.addConstraint(Sketcher.Constraint("Horizontal", 2, 2, 5, 2))
sketch2.addConstraint(Sketcher.Constraint("Horizontal", 3, 2, 11, 2))
sketch2.addConstraint(Sketcher.Constraint("Horizontal", 16, 2, 24, 2))
sketch2.addConstraint(Sketcher.Constraint("Horizontal", 30, 2, 34, 2))
sketch2.addConstraint(Sketcher.Constraint("Horizontal", 37, 2, 38, 2))
sketch2.addConstraint(Sketcher.Constraint("Horizontal", 36, 2, 39, 2))
sketch2.addConstraint(Sketcher.Constraint("Horizontal", 7, 2, 44, 2))
sketch2.addConstraint(Sketcher.Constraint("Horizontal", 8, 2, 48, 2))
sketch2.addConstraint(Sketcher.Constraint("Horizontal", 32, 2, 51, 2))
sketch2.addConstraint(Sketcher.Constraint("Horizontal", 61, 2, 62, 1))
sketch2.addConstraint(Sketcher.Constraint("Horizontal", 43, 2, 66, 2))
sketch2.addConstraint(Sketcher.Constraint("Horizontal", 42, 2, 68, 2))
sketch2.addConstraint(Sketcher.Constraint("Horizontal", 27, 3, 69, 2))
sketch2.addConstraint(Sketcher.Constraint("Vertical", 74, 3, 76, 3))
sketch2.addConstraint(Sketcher.Constraint("Vertical", 76, 3, 77, 3))
sketch2.addConstraint(Sketcher.Constraint("Vertical", 3, 2, 36, 2))
sketch2.addConstraint(Sketcher.Constraint("Vertical", 8, 2, 42, 2))
sketch2.addConstraint(Sketcher.Constraint("Vertical", 37, 2, 60, 1))
sketch2.addConstraint(Sketcher.Constraint("Vertical", 33, 2, 69, 2))
sketch2.addConstraint(Sketcher.Constraint("Equal", 10, 41))
sketch2.addConstraint(Sketcher.Constraint("Equal", 50, 55))
sketch2.addConstraint(Sketcher.Constraint("Diameter", 28, Q("0.19 in")))
sketch2.addConstraint(Sketcher.Constraint("Radius", 2, Q("1.75 in")))
sketch2.addConstraint(Sketcher.Constraint("Radius", 7, Q("0.75 in")))
sketch2.addConstraint(Sketcher.Constraint("Diameter", 27, Q("0.257 in")))
sketch2.addConstraint(Sketcher.Constraint("Diameter", 76, Q("0.196 in")))
sketch2.addConstraint(Sketcher.Constraint("Angle", 1, Q("60 deg")))
sketch2.addConstraint(Sketcher.Constraint("Radius", 4, Q("0.375 in")))
sketch2.addConstraint(Sketcher.Constraint("DistanceX", 5, 2, -1, 1, Q("1.5 in")))
sketch2.addConstraint(Sketcher.Constraint("Radius", 58, Q("0.4875 in")))
sketch2.addConstraint(Sketcher.Constraint("DistanceY", 26, 2, 26, 1, Q("4.475 in")))
sketch2.addConstraint(Sketcher.Constraint("DistanceX", 2, 2, -1, 1, Q("1.75 in")))
sketch2.addConstraint(Sketcher.Constraint("DistanceY", 2, 3, -1, 1, Q("0.09375 in")))
sketch2.addConstraint(Sketcher.Constraint("DistanceY", -1, 1, 18, 3, Q("0.65625 in")))
sketch2.addConstraint(Sketcher.Constraint("DistanceY", -1, 1, 27, 3, Q("0.90625 in")))
sketch2.addConstraint(Sketcher.Constraint("DistanceY", -1, 1, 15, 2, Q("1.15625 in")))
sketch2.addConstraint(Sketcher.Constraint("DistanceX", 67, 2, 67, 1, Q("25.886641 mm")))
sketch2.addConstraint(Sketcher.Constraint("DistanceY", 3, 2, 3, 1, Q("3.678909 mm")))
sketch2.addConstraint(Sketcher.Constraint("DistanceY", 29, 2, 29, 1, Q("62.635968 mm")))
sketch2.addConstraint(Sketcher.Constraint("DistanceY", 32, 1, 32, 2, Q("45.721481 mm")))
sketch2.addConstraint(Sketcher.Constraint("DistanceY", 52, 2, 52, 1, Q("45.720129 mm")))
sketch2.addConstraint(Sketcher.Constraint("DistanceY", 70, 2, 70, 1, Q("9.930968 mm")))
sketch2.addConstraint(Sketcher.Constraint("DistanceX", 16, 2, -1, 1, Q("60.1338 mm")))
sketch2.addConstraint(Sketcher.Constraint("DistanceX", -1, 1, 49, 2, Q("12.536002 mm")))
sketch2.addConstraint(Sketcher.Constraint("Distance", 0, Q("63.47013 mm")))
sketch2.addConstraint(Sketcher.Constraint("Distance", 10, Q("19.185828 mm")))
sketch2.addConstraint(Sketcher.Constraint("Distance", 17, Q("23.54643 mm")))
sketch2.addConstraint(Sketcher.Constraint("Distance", 35, Q("55.841409 mm")))
sketch2.addConstraint(Sketcher.Constraint("Distance", 46, Q("35.36598 mm")))
sketch2.addConstraint(Sketcher.Constraint("DistanceX", 14, 2, 14, 1, Q("22.199326 mm")))
sketch2.addConstraint(Sketcher.Constraint("DistanceX", 16, 1, 16, 2, Q("29.329394 mm")))
sketch2.addConstraint(Sketcher.Constraint("DistanceX", 22, 2, 22, 1, Q("215.357435 mm")))
sketch2.addConstraint(Sketcher.Constraint("DistanceX", 25, 1, 25, 2, Q("30.935213 mm")))
sketch2.addConstraint(Sketcher.Constraint("DistanceX", 30, 2, 30, 1, Q("3.785605 mm")))
sketch2.addConstraint(Sketcher.Constraint("DistanceX", 34, 2, 34, 1, Q("59.139466 mm")))
sketch2.addConstraint(Sketcher.Constraint("DistanceX", 38, 2, 38, 1, Q("29.428975 mm")))
sketch2.addConstraint(Sketcher.Constraint("DistanceX", 69, 1, 69, 2, Q("26.834675 mm")))
sketch2.addConstraint(Sketcher.Constraint("DistanceY", 8, 2, 8, 1, Q("14.240016 mm")))
sketch2.addConstraint(Sketcher.Constraint("DistanceY", 24, 1, 24, 2, Q("113.469414 mm")))
sketch2.addConstraint(Sketcher.Constraint("DistanceY", 37, 2, 37, 1, Q("9.589117 mm")))
sketch2.addConstraint(Sketcher.Constraint("DistanceY", 43, 2, 43, 1, Q("5.307244 mm")))
sketch2.addConstraint(Sketcher.Constraint("DistanceY", 9, 3, -1, 1, Q("63.65875 mm")))
sketch2.addConstraint(Sketcher.Constraint("DistanceY", 12, 3, -1, 1, Q("71.59625 mm")))
sketch2.addConstraint(Sketcher.Constraint("DistanceX", -1, 1, 27, 3, Q("76.119049 mm")))
sketch2.addConstraint(Sketcher.Constraint("DistanceX", -1, 1, 28, 3, Q("61.77487 mm")))
sketch2.addConstraint(Sketcher.Constraint("DistanceX", 0, 2, -1, 1, Q("112.240522 mm")))
sketch2.addConstraint(Sketcher.Constraint("DistanceY", 9, 2, -1, 1, Q("58.244211 mm")))
sketch2.addConstraint(Sketcher.Constraint("DistanceY", 12, 2, -1, 1, Q("78.838539 mm")))
sketch2.addConstraint(Sketcher.Constraint("DistanceX", 19, 2, -1, 1, Q("77.15353 mm")))
sketch2.addConstraint(Sketcher.Constraint("DistanceY", 20, 2, -1, 1, Q("60.628581 mm")))
sketch2.addConstraint(Sketcher.Constraint("DistanceX", -1, 1, 50, 2, Q("17.472938 mm")))
sketch2.addConstraint(Sketcher.Constraint("DistanceY", 65, 2, -1, 1, Q("75.161681 mm")))
sketch2.addConstraint(Sketcher.Constraint("Distance", 47, Q("18.883346 mm")))
sketch2.addConstraint(Sketcher.Constraint("Distance", 54, Q("36.908227 mm")))
sketch2.addConstraint(Sketcher.Constraint("Distance", 65, Q("21.560938 mm")))
sketch2.addConstraint(Sketcher.Constraint("DistanceY", 28, 3, -1, 1, Q("67.406836 mm")))
sketch2.addConstraint(Sketcher.Constraint("DistanceY", 76, 3, -1, 1, Q("36.386925 mm")))
sketch2.addConstraint(Sketcher.Constraint("DistanceY", 77, 3, -1, 1, Q("6.922925 mm")))
sketch2.addConstraint(Sketcher.Constraint("DistanceX", -1, 1, 45, 2, Q("2.377715 mm")))
sketch2.setExpression("Constraints[177]", "Params.sketch2_diameter")
sketch2.setExpression("Constraints[178]", "Params.sketch2_radius")
sketch2.setExpression("Constraints[179]", "Params.sketch2_radius2")
sketch2.setExpression("Constraints[180]", "Params.sketch2_diameter2")
sketch2.setExpression("Constraints[181]", "Params.sketch2_diameter3")
pocket1 = body.newObject("PartDesign::Pocket", "Pocket")
pocket1.Profile = sketch2
pocket1.setExpression("Length", "Params.pocket1_length")
pocket1.Reversed = True

doc.recompute()
